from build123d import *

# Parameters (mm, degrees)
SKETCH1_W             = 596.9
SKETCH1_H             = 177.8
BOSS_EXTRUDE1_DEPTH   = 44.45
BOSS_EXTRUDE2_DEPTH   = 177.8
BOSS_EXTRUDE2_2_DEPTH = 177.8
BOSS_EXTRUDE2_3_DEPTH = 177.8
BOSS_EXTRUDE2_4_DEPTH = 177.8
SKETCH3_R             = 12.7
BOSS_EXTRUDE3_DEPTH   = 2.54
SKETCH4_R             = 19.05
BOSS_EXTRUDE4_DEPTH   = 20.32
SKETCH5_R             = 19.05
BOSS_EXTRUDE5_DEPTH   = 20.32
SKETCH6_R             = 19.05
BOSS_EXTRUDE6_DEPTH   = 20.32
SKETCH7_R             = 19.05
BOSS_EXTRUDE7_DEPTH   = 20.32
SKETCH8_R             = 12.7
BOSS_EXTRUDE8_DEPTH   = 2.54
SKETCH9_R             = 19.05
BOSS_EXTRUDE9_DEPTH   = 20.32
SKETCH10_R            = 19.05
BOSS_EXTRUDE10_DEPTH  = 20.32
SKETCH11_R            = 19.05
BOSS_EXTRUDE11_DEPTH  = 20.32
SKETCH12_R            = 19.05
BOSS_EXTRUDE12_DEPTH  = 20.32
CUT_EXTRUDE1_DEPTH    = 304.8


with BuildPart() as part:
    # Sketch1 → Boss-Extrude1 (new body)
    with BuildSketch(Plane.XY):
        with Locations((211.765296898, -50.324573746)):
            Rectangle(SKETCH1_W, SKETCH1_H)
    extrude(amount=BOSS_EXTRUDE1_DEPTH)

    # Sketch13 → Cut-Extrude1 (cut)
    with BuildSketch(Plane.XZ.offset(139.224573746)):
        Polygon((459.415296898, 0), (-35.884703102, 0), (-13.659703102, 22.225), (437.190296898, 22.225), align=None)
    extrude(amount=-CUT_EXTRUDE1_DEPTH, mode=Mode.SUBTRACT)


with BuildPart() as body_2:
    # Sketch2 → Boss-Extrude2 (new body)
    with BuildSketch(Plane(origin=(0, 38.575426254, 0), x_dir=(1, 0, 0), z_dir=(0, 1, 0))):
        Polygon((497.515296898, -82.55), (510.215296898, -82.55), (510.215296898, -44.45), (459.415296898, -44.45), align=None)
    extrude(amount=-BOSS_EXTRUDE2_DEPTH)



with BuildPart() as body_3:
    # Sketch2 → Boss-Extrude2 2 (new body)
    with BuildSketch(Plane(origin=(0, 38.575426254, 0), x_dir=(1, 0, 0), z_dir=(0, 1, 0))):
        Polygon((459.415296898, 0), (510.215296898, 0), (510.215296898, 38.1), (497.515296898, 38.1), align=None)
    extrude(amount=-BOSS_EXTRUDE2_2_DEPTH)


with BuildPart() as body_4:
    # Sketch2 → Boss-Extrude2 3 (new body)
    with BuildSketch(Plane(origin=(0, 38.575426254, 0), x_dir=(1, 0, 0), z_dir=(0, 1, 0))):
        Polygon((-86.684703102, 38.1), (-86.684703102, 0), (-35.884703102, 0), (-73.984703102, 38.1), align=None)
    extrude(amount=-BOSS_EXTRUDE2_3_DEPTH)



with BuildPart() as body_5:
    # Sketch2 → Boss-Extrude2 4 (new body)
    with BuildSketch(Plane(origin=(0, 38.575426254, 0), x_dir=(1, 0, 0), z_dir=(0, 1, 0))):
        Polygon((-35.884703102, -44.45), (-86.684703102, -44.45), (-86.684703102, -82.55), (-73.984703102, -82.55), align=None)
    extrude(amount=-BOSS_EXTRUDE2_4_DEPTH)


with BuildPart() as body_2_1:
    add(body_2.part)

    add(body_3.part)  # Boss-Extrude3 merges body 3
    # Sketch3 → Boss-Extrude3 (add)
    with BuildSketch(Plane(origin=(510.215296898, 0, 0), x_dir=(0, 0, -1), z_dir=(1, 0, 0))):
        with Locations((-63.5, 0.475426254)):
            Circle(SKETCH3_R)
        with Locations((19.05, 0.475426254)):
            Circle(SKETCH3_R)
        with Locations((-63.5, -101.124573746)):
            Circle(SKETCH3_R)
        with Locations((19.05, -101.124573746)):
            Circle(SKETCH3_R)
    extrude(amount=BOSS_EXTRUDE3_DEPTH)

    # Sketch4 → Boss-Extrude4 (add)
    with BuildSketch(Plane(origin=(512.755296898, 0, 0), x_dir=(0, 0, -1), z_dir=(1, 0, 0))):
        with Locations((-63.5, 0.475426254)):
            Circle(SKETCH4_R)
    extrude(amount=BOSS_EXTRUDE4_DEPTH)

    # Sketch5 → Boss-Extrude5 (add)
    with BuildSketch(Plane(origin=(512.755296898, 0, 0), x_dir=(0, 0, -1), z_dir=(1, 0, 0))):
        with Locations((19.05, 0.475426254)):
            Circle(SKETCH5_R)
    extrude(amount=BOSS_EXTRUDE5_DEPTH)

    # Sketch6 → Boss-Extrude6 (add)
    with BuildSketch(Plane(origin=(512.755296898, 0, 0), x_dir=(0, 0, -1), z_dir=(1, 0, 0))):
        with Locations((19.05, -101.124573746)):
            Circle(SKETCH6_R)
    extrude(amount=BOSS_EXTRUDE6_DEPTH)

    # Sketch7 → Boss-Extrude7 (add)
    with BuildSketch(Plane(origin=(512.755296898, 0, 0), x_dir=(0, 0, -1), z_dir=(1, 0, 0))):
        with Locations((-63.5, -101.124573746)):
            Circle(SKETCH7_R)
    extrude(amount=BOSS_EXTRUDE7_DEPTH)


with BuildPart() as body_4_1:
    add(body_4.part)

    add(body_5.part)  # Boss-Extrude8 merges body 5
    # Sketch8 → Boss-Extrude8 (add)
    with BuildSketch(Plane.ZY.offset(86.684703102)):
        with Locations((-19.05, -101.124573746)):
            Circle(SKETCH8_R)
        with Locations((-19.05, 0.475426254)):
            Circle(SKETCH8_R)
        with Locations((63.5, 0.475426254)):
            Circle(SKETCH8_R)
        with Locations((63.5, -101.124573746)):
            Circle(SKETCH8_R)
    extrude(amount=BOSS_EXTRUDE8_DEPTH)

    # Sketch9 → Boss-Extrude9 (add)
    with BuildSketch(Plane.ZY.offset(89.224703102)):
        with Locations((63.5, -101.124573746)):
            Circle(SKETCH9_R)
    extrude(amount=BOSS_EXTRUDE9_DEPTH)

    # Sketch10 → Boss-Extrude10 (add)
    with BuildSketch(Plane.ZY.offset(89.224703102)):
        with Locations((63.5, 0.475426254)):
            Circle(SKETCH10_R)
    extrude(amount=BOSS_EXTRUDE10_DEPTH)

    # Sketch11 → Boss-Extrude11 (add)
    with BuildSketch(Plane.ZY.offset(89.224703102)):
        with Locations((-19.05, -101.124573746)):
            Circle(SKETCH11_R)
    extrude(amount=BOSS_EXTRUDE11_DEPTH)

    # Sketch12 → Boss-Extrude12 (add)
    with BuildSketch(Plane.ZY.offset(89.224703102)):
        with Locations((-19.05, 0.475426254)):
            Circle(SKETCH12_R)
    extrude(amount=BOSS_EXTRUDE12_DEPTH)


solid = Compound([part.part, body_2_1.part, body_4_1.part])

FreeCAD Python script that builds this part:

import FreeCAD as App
import Part
import Sketcher

V = App.Vector
Q = App.Units.Quantity

doc = App.newDocument("Part")
body = doc.addObject("PartDesign::Body", "Body")

# Sketch on XY plane
sketch1 = doc.addObject("Sketcher::SketchObject", "Sketch")
body.addObject(sketch1)
sketch1.AttachmentSupport = (doc.XY_Plane, [""])
sketch1.MapMode = "FlatFace"
sketch1.addGeometry(Part.LineSegment(V(-87, 39, 0), V(-87, -139, 0)), False)
sketch1.addGeometry(Part.LineSegment(V(-87, -139, 0), V(510, -139, 0)), False)
sketch1.addGeometry(Part.LineSegment(V(510, -139, 0), V(510, 39, 0)), False)
sketch1.addGeometry(Part.LineSegment(V(510, 39, 0), V(-87, 39, 0)), False)
sketch1.addConstraint(Sketcher.Constraint("Coincident", 0, 2, 1, 1))
sketch1.addConstraint(Sketcher.Constraint("Coincident", 1, 2, 2, 1))
sketch1.addConstraint(Sketcher.Constraint("Coincident", 2, 2, 3, 1))
sketch1.addConstraint(Sketcher.Constraint("Coincident", 3, 2, 0, 1))
sketch1.addConstraint(Sketcher.Constraint("Vertical", 0))
sketch1.addConstraint(Sketcher.Constraint("Horizontal", 1))
sketch1.addConstraint(Sketcher.Constraint("Vertical", 2))
sketch1.addConstraint(Sketcher.Constraint("Horizontal", 3))
sketch1.addConstraint(Sketcher.Constraint("DistanceY", 0, 2, 0, 1, Q("7 in")))
sketch1.addConstraint(Sketcher.Constraint("DistanceX", 1, 1, 1, 2, Q("23.5 in")))
sketch1.addConstraint(Sketcher.Constraint("DistanceX", 0, 2, -1, 1, Q("86.684703 mm")))
sketch1.addConstraint(Sketcher.Constraint("DistanceY", 0, 2, -1, 1, Q("139.224574 mm")))
pad1 = doc.addObject("PartDesign::Pad", "Pad")
body.addObject(pad1)
pad1.Profile = sketch1
pad1.Length = Q("1.75 in")

# Sketch on XZ plane
sketch2 = doc.addObject("Sketcher::SketchObject", "Sketch001")
body.addObject(sketch2)
sketch2.AttachmentSupport = (doc.XZ_Plane, [""])
sketch2.MapMode = "FlatFace"
sketch2.AttachmentOffset = App.Placement(V(0, 0, 139.224574), App.Rotation())
sketch2.addGeometry(Part.LineSegment(V(-36, 0, 0), V(459, 0, 0)), False)
sketch2.addGeometry(Part.LineSegment(V(459, 0, 0), V(437, 22, 0)), False)
sketch2.addGeometry(Part.LineSegment(V(437, 22, 0), V(-14, 22, 0)), False)
sketch2.addGeometry(Part.LineSegment(V(-14, 22, 0), V(-36, 0, 0)), False)
sketch2.addConstraint(Sketcher.Constraint("Coincident", 0, 2, 1, 1))
sketch2.addConstraint(Sketcher.Constraint("Coincident", 1, 2, 2, 1))
sketch2.addConstraint(Sketcher.Constraint("Coincident", 2, 2, 3, 1))
sketch2.addConstraint(Sketcher.Constraint("Coincident", 3, 2, 0, 1))
sketch2.addConstraint(Sketcher.Constraint("Horizontal", 0))
sketch2.addConstraint(Sketcher.Constraint("Horizontal", 2))
sketch2.addConstraint(Sketcher.Constraint("PointOnObject", 0, 2, -1))
sketch2.addConstraint(Sketcher.Constraint("Perpendicular", 1, 3))
sketch2.addConstraint(Sketcher.Constraint("Equal", 1, 3))
sketch2.addConstraint(Sketcher.Constraint("DistanceX", 0, 1, 0, 2, Q("19.5 in")))
sketch2.addConstraint(Sketcher.Constraint("DistanceX", 2, 2, 2, 1, Q("17.75 in")))
sketch2.addConstraint(Sketcher.Constraint("DistanceX", -1, 1, 0, 2, Q("459.415297 mm")))
pocket1 = doc.addObject("PartDesign::Pocket", "Pocket")
body.addObject(pocket1)
pocket1.Profile = sketch2
pocket1.Length = Q("12 in")
body2 = doc.addObject("PartDesign::Body", "Body001")

# Sketch on XZ plane
sketch3 = doc.addObject("Sketcher::SketchObject", "Sketch002")
body2.addObject(sketch3)
sketch3.AttachmentSupport = (doc.getObject("XZ_Plane001"), [""])
sketch3.MapMode = "FlatFace"
sketch3.AttachmentOffset = App.Placement(V(0, 0, -38.575426), App.Rotation())
sketch3.addGeometry(Part.LineSegment(V(498, 83, 0), V(510, 83, 0)), False)
sketch3.addGeometry(Part.LineSegment(V(510, 83, 0), V(510, 44, 0)), False)
sketch3.addGeometry(Part.LineSegment(V(510, 44, 0), V(459, 44, 0)), False)
sketch3.addGeometry(Part.LineSegment(V(459, 44, 0), V(498, 83, 0)), False)
sketch3.addConstraint(Sketcher.Constraint("Coincident", 0, 2, 1, 1))
sketch3.addConstraint(Sketcher.Constraint("Coincident", 1, 2, 2, 1))
sketch3.addConstraint(Sketcher.Constraint("Coincident", 2, 2, 3, 1))
sketch3.addConstraint(Sketcher.Constraint("Coincident", 3, 2, 0, 1))
sketch3.addConstraint(Sketcher.Constraint("Horizontal", 0))
sketch3.addConstraint(Sketcher.Constraint("Vertical", 1))
sketch3.addConstraint(Sketcher.Constraint("Horizontal", 2))
sketch3.addConstraint(Sketcher.Constraint("DistanceX", 2, 2, 2, 1, Q("2 in")))
sketch3.addConstraint(Sketcher.Constraint("DistanceX", 0, 1, 0, 2, Q("0.5 in")))
sketch3.addConstraint(Sketcher.Constraint("DistanceY", 1, 2, 1, 1, Q("1.5 in")))
sketch3.addConstraint(Sketcher.Constraint("DistanceY", -1, 1, 0, 2, Q("3.25 in")))
sketch3.addConstraint(Sketcher.Constraint("DistanceX", -1, 1, 0, 2, Q("510.215297 mm")))
pad2 = doc.addObject("PartDesign::Pad", "Pad001")
body2.addObject(pad2)
pad2.Profile = sketch3
pad2.Length = Q("7 in")
body3 = doc.addObject("PartDesign::Body", "Body002")

# Sketch on XZ plane
sketch4 = doc.addObject("Sketcher::SketchObject", "Sketch003")
body3.addObject(sketch4)
sketch4.AttachmentSupport = (doc.getObject("XZ_Plane002"), [""])
sketch4.MapMode = "FlatFace"
sketch4.AttachmentOffset = App.Placement(V(0, 0, -38.575426), App.Rotation())
sketch4.addGeometry(Part.LineSegment(V(459, 0, 0), V(510, 0, 0)), False)
sketch4.addGeometry(Part.LineSegment(V(510, 0, 0), V(510, -38, 0)), False)
sketch4.addGeometry(Part.LineSegment(V(510, -38, 0), V(498, -38, 0)), False)
sketch4.addGeometry(Part.LineSegment(V(498, -38, 0), V(459, 0, 0)), False)
sketch4.addConstraint(Sketcher.Constraint("Coincident", 0, 2, 1, 1))
sketch4.addConstraint(Sketcher.Constraint("Coincident", 1, 2, 2, 1))
sketch4.addConstraint(Sketcher.Constraint("Coincident", 2, 2, 3, 1))
sketch4.addConstraint(Sketcher.Constraint("Coincident", 3, 2, 0, 1))
sketch4.addConstraint(Sketcher.Constraint("Horizontal", 0))
sketch4.addConstraint(Sketcher.Constraint("Vertical", 1))
sketch4.addConstraint(Sketcher.Constraint("Horizontal", 2))
sketch4.addConstraint(Sketcher.Constraint("PointOnObject", 0, 2, -1))
sketch4.addConstraint(Sketcher.Constraint("DistanceX", 0, 1, 0, 2, Q("2 in")))
sketch4.addConstraint(Sketcher.Constraint("DistanceX", 2, 2, 2, 1, Q("0.5 in")))
sketch4.addConstraint(Sketcher.Constraint("DistanceY", 1, 2, 1, 1, Q("1.5 in")))
sketch4.addConstraint(Sketcher.Constraint("DistanceX", -1, 1, 0, 2, Q("510.215297 mm")))
pad3 = doc.addObject("PartDesign::Pad", "Pad002")
body3.addObject(pad3)
pad3.Profile = sketch4
pad3.Length = Q("7 in")
body4 = doc.addObject("PartDesign::Body", "Body003")

# Sketch on XZ plane
sketch5 = doc.addObject("Sketcher::SketchObject", "Sketch004")
body4.addObject(sketch5)
sketch5.AttachmentSupport = (doc.getObject("XZ_Plane003"), [""])
sketch5.MapMode = "FlatFace"
sketch5.AttachmentOffset = App.Placement(V(0, 0, -38.575426), App.Rotation())
sketch5.addGeometry(Part.LineSegment(V(-87, -38, 0), V(-87, 0, 0)), False)
sketch5.addGeometry(Part.LineSegment(V(-87, 0, 0), V(-36, 0, 0)), False)
sketch5.addGeometry(Part.LineSegment(V(-36, 0, 0), V(-74, -38, 0)), False)
sketch5.addGeometry(Part.LineSegment(V(-74, -38, 0), V(-87, -38, 0)), False)
sketch5.addConstraint(Sketcher.Constraint("Coincident", 0, 2, 1, 1))
sketch5.addConstraint(Sketcher.Constraint("Coincident", 1, 2, 2, 1))
sketch5.addConstraint(Sketcher.Constraint("Coincident", 2, 2, 3, 1))
sketch5.addConstraint(Sketcher.Constraint("Coincident", 3, 2, 0, 1))
sketch5.addConstraint(Sketcher.Constraint("Vertical", 0))
sketch5.addConstraint(Sketcher.Constraint("Horizontal", 1))
sketch5.addConstraint(Sketcher.Constraint("Horizontal", 3))
sketch5.addConstraint(Sketcher.Constraint("PointOnObject", 0, 2, -1))
sketch5.addConstraint(Sketcher.Constraint("DistanceX", 1, 1, 1, 2, Q("2 in")))
sketch5.addConstraint(Sketcher.Constraint("DistanceX", 3, 2, 3, 1, Q("0.5 in")))
sketch5.addConstraint(Sketcher.Constraint("DistanceY", 0, 1, 0, 2, Q("1.5 in")))
sketch5.addConstraint(Sketcher.Constraint("DistanceX", 0, 2, -1, 1, Q("86.684703 mm")))
pad4 = doc.addObject("PartDesign::Pad", "Pad003")
body4.addObject(pad4)
pad4.Profile = sketch5
pad4.Length = Q("7 in")
body5 = doc.addObject("PartDesign::Body", "Body004")

# Sketch on XZ plane
sketch6 = doc.addObject("Sketcher::SketchObject", "Sketch005")
body5.addObject(sketch6)
sketch6.AttachmentSupport = (doc.getObject("XZ_Plane004"), [""])
sketch6.MapMode = "FlatFace"
sketch6.AttachmentOffset = App.Placement(V(0, 0, -38.575426), App.Rotation())
sketch6.addGeometry(Part.LineSegment(V(-36, 44, 0), V(-87, 44, 0)), False)
sketch6.addGeometry(Part.LineSegment(V(-87, 44, 0), V(-87, 83, 0)), False)
sketch6.addGeometry(Part.LineSegment(V(-87, 83, 0), V(-74, 83, 0)), False)
sketch6.addGeometry(Part.LineSegment(V(-74, 83, 0), V(-36, 44, 0)), False)
sketch6.addConstraint(Sketcher.Constraint("Coincident", 0, 2, 1, 1))
sketch6.addConstraint(Sketcher.Constraint("Coincident", 1, 2, 2, 1))
sketch6.addConstraint(Sketcher.Constraint("Coincident", 2, 2, 3, 1))
sketch6.addConstraint(Sketcher.Constraint("Coincident", 3, 2, 0, 1))
sketch6.addConstraint(Sketcher.Constraint("Horizontal", 0))
sketch6.addConstraint(Sketcher.Constraint("Vertical", 1))
sketch6.addConstraint(Sketcher.Constraint("Horizontal", 2))
sketch6.addConstraint(Sketcher.Constraint("DistanceX", 0, 2, 0, 1, Q("2 in")))
sketch6.addConstraint(Sketcher.Constraint("DistanceX", 2, 1, 2, 2, Q("0.5 in")))
sketch6.addConstraint(Sketcher.Constraint("DistanceY", 1, 1, 1, 2, Q("1.5 in")))
sketch6.addConstraint(Sketcher.Constraint("DistanceY", -1, 1, 0, 2, Q("1.75 in")))
sketch6.addConstraint(Sketcher.Constraint("DistanceX", 0, 2, -1, 1, Q("86.684703 mm")))
pad5 = doc.addObject("PartDesign::Pad", "Pad004")
body5.addObject(pad5)
pad5.Profile = sketch6
pad5.Length = Q("7 in")
body2.AllowCompound = True
doc.recompute()

boolean = doc.addObject("PartDesign::Boolean", "Boolean")
body2.addObject(boolean)
boolean.Type = "Fuse"
boolean.addObjects([body3])

# Sketch on YZ plane
sketch7 = doc.addObject("Sketcher::SketchObject", "Sketch006")
body2.addObject(sketch7)
sketch7.AttachmentSupport = (doc.getObject("YZ_Plane001"), [""])
sketch7.MapMode = "FlatFace"
sketch7.AttachmentOffset = App.Placement(V(0, 0, 510.215297), App.Rotation())
sketch7.addGeometry(Part.Circle(V(0, 64, 0), V(0, 0, 1), 13), False)
sketch7.addGeometry(Part.Circle(V(0, -19, 0), V(0, 0, 1), 13), False)
sketch7.addGeometry(Part.Circle(V(-101, 64, 0), V(0, 0, 1), 13), False)
sketch7.addGeometry(Part.Circle(V(-101, -19, 0), V(0, 0, 1), 13), False)
sketch7.addConstraint(Sketcher.Constraint("Equal", 0, 1))
sketch7.addConstraint(Sketcher.Constraint("Equal", 1, 2))
sketch7.addConstraint(Sketcher.Constraint("Equal", 2, 3))
sketch7.addConstraint(Sketcher.Constraint("Horizontal", 0, 3, 2, 3))
sketch7.addConstraint(Sketcher.Constraint("Horizontal", 1, 3, 3, 3))
sketch7.addConstraint(Sketcher.Constraint("Vertical", 0, 3, 1, 3))
sketch7.addConstraint(Sketcher.Constraint("Vertical", 2, 3, 3, 3))
sketch7.addConstraint(Sketcher.Constraint("Diameter", 0, Q("1 in")))
sketch7.addConstraint(Sketcher.Constraint("DistanceX", 2, 3, 0, 3, Q("4 in")))
sketch7.addConstraint(Sketcher.Constraint("DistanceY", -1, 1, 0, 3, Q("2.5 in")))
sketch7.addConstraint(Sketcher.Constraint("DistanceY", 1, 3, -1, 1, Q("0.75 in")))
sketch7.addConstraint(Sketcher.Constraint("DistanceX", -1, 1, 0, 3, Q("0.475426 mm")))
pad6 = doc.addObject("PartDesign::Pad", "Pad005")
body2.addObject(pad6)
pad6.Profile = sketch7
pad6.Length = Q("0.1 in")

# Sketch on YZ plane
sketch8 = doc.addObject("Sketcher::SketchObject", "Sketch007")
body2.addObject(sketch8)
sketch8.AttachmentSupport = (doc.getObject("YZ_Plane001"), [""])
sketch8.MapMode = "FlatFace"
sketch8.AttachmentOffset = App.Placement(V(0, 0, 512.755297), App.Rotation())
sketch8.addGeometry(Part.Circle(V(0, 64, 0), V(0, 0, 1), 19), False)
sketch8.addConstraint(Sketcher.Constraint("Diameter", 0, Q("1.5 in")))
sketch8.addConstraint(Sketcher.Constraint("DistanceY", -1, 1, 0, 3, Q("2.5 in")))
sketch8.addConstraint(Sketcher.Constraint("DistanceX", -1, 1, 0, 3, Q("0.475426 mm")))
pad7 = doc.addObject("PartDesign::Pad", "Pad006")
body2.addObject(pad7)
pad7.Profile = sketch8
pad7.Length = Q("0.8 in")

# Sketch on YZ plane
sketch9 = doc.addObject("Sketcher::SketchObject", "Sketch008")
body2.addObject(sketch9)
sketch9.AttachmentSupport = (doc.getObject("YZ_Plane001"), [""])
sketch9.MapMode = "FlatFace"
sketch9.AttachmentOffset = App.Placement(V(0, 0, 512.755297), App.Rotation())
sketch9.addGeometry(Part.Circle(V(0, -19, 0), V(0, 0, 1), 19), False)
sketch9.addConstraint(Sketcher.Constraint("Diameter", 0, Q("1.5 in")))
sketch9.addConstraint(Sketcher.Constraint("DistanceY", 0, 3, -1, 1, Q("0.75 in")))
sketch9.addConstraint(Sketcher.Constraint("DistanceX", -1, 1, 0, 3, Q("0.475426 mm")))
pad8 = doc.addObject("PartDesign::Pad", "Pad007")
body2.addObject(pad8)
pad8.Profile = sketch9
pad8.Length = Q("0.8 in")

# Sketch on YZ plane
sketch10 = doc.addObject("Sketcher::SketchObject", "Sketch009")
body2.addObject(sketch10)
sketch10.AttachmentSupport = (doc.getObject("YZ_Plane001"), [""])
sketch10.MapMode = "FlatFace"
sketch10.AttachmentOffset = App.Placement(V(0, 0, 512.755297), App.Rotation())
sketch10.addGeometry(Part.Circle(V(-101, -19, 0), V(0, 0, 1), 19), False)
sketch10.addConstraint(Sketcher.Constraint("Diameter", 0, Q("1.5 in")))
sketch10.addConstraint(Sketcher.Constraint("DistanceY", 0, 3, -1, 1, Q("0.75 in")))
sketch10.addConstraint(Sketcher.Constraint("DistanceX", 0, 3, -1, 1, Q("101.124574 mm")))
pad9 = doc.addObject("PartDesign::Pad", "Pad008")
body2.addObject(pad9)
pad9.Profile = sketch10
pad9.Length = Q("0.8 in")

# Sketch on YZ plane
sketch11 = doc.addObject("Sketcher::SketchObject", "Sketch010")
body2.addObject(sketch11)
sketch11.AttachmentSupport = (doc.getObject("YZ_Plane001"), [""])
sketch11.MapMode = "FlatFace"
sketch11.AttachmentOffset = App.Placement(V(0, 0, 512.755297), App.Rotation())
sketch11.addGeometry(Part.Circle(V(-101, 64, 0), V(0, 0, 1), 19), False)
sketch11.addConstraint(Sketcher.Constraint("Diameter", 0, Q("1.5 in")))
sketch11.addConstraint(Sketcher.Constraint("DistanceY", -1, 1, 0, 3, Q("2.5 in")))
sketch11.addConstraint(Sketcher.Constraint("DistanceX", 0, 3, -1, 1, Q("101.124574 mm")))
pad10 = doc.addObject("PartDesign::Pad", "Pad009")
body2.addObject(pad10)
pad10.Profile = sketch11
pad10.Length = Q("0.8 in")
body4.AllowCompound = True
doc.recompute()

boolean2 = doc.addObject("PartDesign::Boolean", "Boolean001")
body4.addObject(boolean2)
boolean2.Type = "Fuse"
boolean2.addObjects([body5])

# Sketch on YZ plane
sketch12 = doc.addObject("Sketcher::SketchObject", "Sketch011")
body4.addObject(sketch12)
sketch12.AttachmentSupport = (doc.getObject("YZ_Plane003"), [""])
sketch12.MapMode = "FlatFace"
sketch12.AttachmentOffset = App.Placement(V(0, 0, -86.684703), App.Rotation())
sketch12.addGeometry(Part.Circle(V(-101, -19, 0), V(0, 0, 1), 13), False)
sketch12.addGeometry(Part.Circle(V(0, -19, 0), V(0, 0, 1), 13), False)
sketch12.addGeometry(Part.Circle(V(0, 64, 0), V(0, 0, 1), 13), False)
sketch12.addGeometry(Part.Circle(V(-101, 64, 0), V(0, 0, 1), 13), False)
sketch12.addConstraint(Sketcher.Constraint("Equal", 0, 1))
sketch12.addConstraint(Sketcher.Constraint("Equal", 1, 2))
sketch12.addConstraint(Sketcher.Constraint("Equal", 2, 3))
sketch12.addConstraint(Sketcher.Constraint("Horizontal", 0, 3, 1, 3))
sketch12.addConstraint(Sketcher.Constraint("Horizontal", 2, 3, 3, 3))
sketch12.addConstraint(Sketcher.Constraint("Vertical", 1, 3, 2, 3))
sketch12.addConstraint(Sketcher.Constraint("Vertical", 0, 3, 3, 3))
sketch12.addConstraint(Sketcher.Constraint("Diameter", 0, Q("1 in")))
sketch12.addConstraint(Sketcher.Constraint("DistanceX", 0, 3, 1, 3, Q("4 in")))
sketch12.addConstraint(Sketcher.Constraint("DistanceY", -1, 1, 2, 3, Q("2.5 in")))
sketch12.addConstraint(Sketcher.Constraint("DistanceY", 0, 3, -1, 1, Q("0.75 in")))
sketch12.addConstraint(Sketcher.Constraint("DistanceX", 0, 3, -1, 1, Q("101.124574 mm")))
pad11 = doc.addObject("PartDesign::Pad", "Pad010")
body4.addObject(pad11)
pad11.Profile = sketch12
pad11.Length = Q("0.1 in")
pad11.Reversed = True

# Sketch on YZ plane
sketch13 = doc.addObject("Sketcher::SketchObject", "Sketch012")
body4.addObject(sketch13)
sketch13.AttachmentSupport = (doc.getObject("YZ_Plane003"), [""])
sketch13.MapMode = "FlatFace"
sketch13.AttachmentOffset = App.Placement(V(0, 0, -89.224703), App.Rotation())
sketch13.addGeometry(Part.Circle(V(-101, 64, 0), V(0, 0, 1), 19), False)
sketch13.addConstraint(Sketcher.Constraint("Diameter", 0, Q("1.5 in")))
sketch13.addConstraint(Sketcher.Constraint("DistanceY", -1, 1, 0, 3, Q("2.5 in")))
sketch13.addConstraint(Sketcher.Constraint("DistanceX", 0, 3, -1, 1, Q("101.124574 mm")))
pad12 = doc.addObject("PartDesign::Pad", "Pad011")
body4.addObject(pad12)
pad12.Profile = sketch13
pad12.Length = Q("0.8 in")
pad12.Reversed = True

# Sketch on YZ plane
sketch14 = doc.addObject("Sketcher::SketchObject", "Sketch013")
body4.addObject(sketch14)
sketch14.AttachmentSupport = (doc.getObject("YZ_Plane003"), [""])
sketch14.MapMode = "FlatFace"
sketch14.AttachmentOffset = App.Placement(V(0, 0, -89.224703), App.Rotation())
sketch14.addGeometry(Part.Circle(V(0, 64, 0), V(0, 0, 1), 19), False)
sketch14.addConstraint(Sketcher.Constraint("Diameter", 0, Q("1.5 in")))
sketch14.addConstraint(Sketcher.Constraint("DistanceY", -1, 1, 0, 3, Q("2.5 in")))
sketch14.addConstraint(Sketcher.Constraint("DistanceX", -1, 1, 0, 3, Q("0.475426 mm")))
pad13 = doc.addObject("PartDesign::Pad", "Pad012")
body4.addObject(pad13)
pad13.Profile = sketch14
pad13.Length = Q("0.8 in")
pad13.Reversed = True

# Sketch on YZ plane
sketch15 = doc.addObject("Sketcher::SketchObject", "Sketch014")
body4.addObject(sketch15)
sketch15.AttachmentSupport = (doc.getObject("YZ_Plane003"), [""])
sketch15.MapMode = "FlatFace"
sketch15.AttachmentOffset = App.Placement(V(0, 0, -89.224703), App.Rotation())
sketch15.addGeometry(Part.Circle(V(-101, -19, 0), V(0, 0, 1), 19), False)
sketch15.addConstraint(Sketcher.Constraint("Diameter", 0, Q("1.5 in")))
sketch15.addConstraint(Sketcher.Constraint("DistanceY", 0, 3, -1, 1, Q("0.75 in")))
sketch15.addConstraint(Sketcher.Constraint("DistanceX", 0, 3, -1, 1, Q("101.124574 mm")))
pad14 = doc.addObject("PartDesign::Pad", "Pad013")
body4.addObject(pad14)
pad14.Profile = sketch15
pad14.Length = Q("0.8 in")
pad14.Reversed = True

# Sketch on YZ plane
sketch16 = doc.addObject("Sketcher::SketchObject", "Sketch015")
body4.addObject(sketch16)
sketch16.AttachmentSupport = (doc.getObject("YZ_Plane003"), [""])
sketch16.MapMode = "FlatFace"
sketch16.AttachmentOffset = App.Placement(V(0, 0, -89.224703), App.Rotation())
sketch16.addGeometry(Part.Circle(V(0, -19, 0), V(0, 0, 1), 19), False)
sketch16.addConstraint(Sketcher.Constraint("Diameter", 0, Q("1.5 in")))
sketch16.addConstraint(Sketcher.Constraint("DistanceY", 0, 3, -1, 1, Q("0.75 in")))
sketch16.addConstraint(Sketcher.Constraint("DistanceX", -1, 1, 0, 3, Q("0.475426 mm")))
pad15 = doc.addObject("PartDesign::Pad", "Pad014")
body4.addObject(pad15)
pad15.Profile = sketch16
pad15.Length = Q("0.8 in")
pad15.Reversed = True

doc.recompute()
